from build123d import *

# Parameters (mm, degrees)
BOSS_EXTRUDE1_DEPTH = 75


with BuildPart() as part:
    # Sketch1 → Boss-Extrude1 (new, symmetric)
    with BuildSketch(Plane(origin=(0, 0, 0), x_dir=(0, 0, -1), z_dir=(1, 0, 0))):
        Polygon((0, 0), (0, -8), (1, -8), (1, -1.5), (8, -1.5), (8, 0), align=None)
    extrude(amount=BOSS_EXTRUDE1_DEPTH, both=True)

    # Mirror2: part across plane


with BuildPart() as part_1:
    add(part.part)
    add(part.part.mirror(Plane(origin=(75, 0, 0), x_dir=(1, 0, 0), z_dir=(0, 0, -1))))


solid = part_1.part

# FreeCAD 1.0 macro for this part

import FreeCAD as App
import Part
import Sketcher
from FreeCAD import Vector


def add_polygon(sketch, points):
    """Adds a closed chain of lines whose ends are joined by coincident constraints."""
    first, n = sketch.GeometryCount, len(points)
    for a, b in zip(points, points[1:] + points[:1]):
        sketch.addGeometry(Part.LineSegment(App.Vector(*a, 0), App.Vector(*b, 0)), False)
    for i in range(n):
        sketch.addConstraint(Sketcher.Constraint("Coincident", first + i, 2, first + (i + 1) % n, 1))

doc = App.newDocument("Part")
body = doc.addObject("PartDesign::Body", "Body")

# Sketch on YZ plane
sketch1 = body.newObject("Sketcher::SketchObject", "Sketch")
sketch1.AttachmentSupport = (doc.getObject("YZ_Plane"), [""])
sketch1.MapMode = "FlatFace"
add_polygon(sketch1, [(0, 0), (-8, 0), (-8, -1), (-1.5, -1), (-1.5, -8), (0, -8)])  # lines 0-5
sketch1.addConstraint(Sketcher.Constraint("Horizontal", 0))
sketch1.addConstraint(Sketcher.Constraint("Vertical", 1))
sketch1.addConstraint(Sketcher.Constraint("Horizontal", 2))
sketch1.addConstraint(Sketcher.Constraint("Vertical", 3))
sketch1.addConstraint(Sketcher.Constraint("Horizontal", 4))
sketch1.addConstraint(Sketcher.Constraint("Vertical", 5))
sketch1.addConstraint(Sketcher.Constraint("Coincident", 5, 2, -1, 1))
sketch1.addConstraint(Sketcher.Constraint("Equal", 0, 5))
sketch1.addConstraint(Sketcher.Constraint("DistanceX", 0, 2, 0, 1, 8.0))
sketch1.addConstraint(Sketcher.Constraint("DistanceY", 1, 2, 1, 1, 1.0))
sketch1.addConstraint(Sketcher.Constraint("DistanceX", 2, 1, 2, 2, 6.5))
pad1 = body.newObject("PartDesign::Pad", "Pad")
pad1.Profile = sketch1
pad1.Length = 150
pad1.Midplane = True
body2 = doc.addObject("PartDesign::Body", "Body001")
doc.recompute()

body2.BaseFeature = body
doc.recompute()

mirroring = doc.addObject("Part::Mirroring", "Mirroring")
mirroring.Source = body
mirroring.Base = Vector(75, 0, 0)
mirroring.Normal = Vector(0, 0, -1)
body3 = doc.addObject("PartDesign::Body", "Body002")
body3.BaseFeature = mirroring
boolean = body2.newObject("PartDesign::Boolean", "Boolean")
boolean.Type = "Fuse"
boolean.addObjects([body3])
doc.recompute()
mirroring.Visibility = False

doc.recompute()
